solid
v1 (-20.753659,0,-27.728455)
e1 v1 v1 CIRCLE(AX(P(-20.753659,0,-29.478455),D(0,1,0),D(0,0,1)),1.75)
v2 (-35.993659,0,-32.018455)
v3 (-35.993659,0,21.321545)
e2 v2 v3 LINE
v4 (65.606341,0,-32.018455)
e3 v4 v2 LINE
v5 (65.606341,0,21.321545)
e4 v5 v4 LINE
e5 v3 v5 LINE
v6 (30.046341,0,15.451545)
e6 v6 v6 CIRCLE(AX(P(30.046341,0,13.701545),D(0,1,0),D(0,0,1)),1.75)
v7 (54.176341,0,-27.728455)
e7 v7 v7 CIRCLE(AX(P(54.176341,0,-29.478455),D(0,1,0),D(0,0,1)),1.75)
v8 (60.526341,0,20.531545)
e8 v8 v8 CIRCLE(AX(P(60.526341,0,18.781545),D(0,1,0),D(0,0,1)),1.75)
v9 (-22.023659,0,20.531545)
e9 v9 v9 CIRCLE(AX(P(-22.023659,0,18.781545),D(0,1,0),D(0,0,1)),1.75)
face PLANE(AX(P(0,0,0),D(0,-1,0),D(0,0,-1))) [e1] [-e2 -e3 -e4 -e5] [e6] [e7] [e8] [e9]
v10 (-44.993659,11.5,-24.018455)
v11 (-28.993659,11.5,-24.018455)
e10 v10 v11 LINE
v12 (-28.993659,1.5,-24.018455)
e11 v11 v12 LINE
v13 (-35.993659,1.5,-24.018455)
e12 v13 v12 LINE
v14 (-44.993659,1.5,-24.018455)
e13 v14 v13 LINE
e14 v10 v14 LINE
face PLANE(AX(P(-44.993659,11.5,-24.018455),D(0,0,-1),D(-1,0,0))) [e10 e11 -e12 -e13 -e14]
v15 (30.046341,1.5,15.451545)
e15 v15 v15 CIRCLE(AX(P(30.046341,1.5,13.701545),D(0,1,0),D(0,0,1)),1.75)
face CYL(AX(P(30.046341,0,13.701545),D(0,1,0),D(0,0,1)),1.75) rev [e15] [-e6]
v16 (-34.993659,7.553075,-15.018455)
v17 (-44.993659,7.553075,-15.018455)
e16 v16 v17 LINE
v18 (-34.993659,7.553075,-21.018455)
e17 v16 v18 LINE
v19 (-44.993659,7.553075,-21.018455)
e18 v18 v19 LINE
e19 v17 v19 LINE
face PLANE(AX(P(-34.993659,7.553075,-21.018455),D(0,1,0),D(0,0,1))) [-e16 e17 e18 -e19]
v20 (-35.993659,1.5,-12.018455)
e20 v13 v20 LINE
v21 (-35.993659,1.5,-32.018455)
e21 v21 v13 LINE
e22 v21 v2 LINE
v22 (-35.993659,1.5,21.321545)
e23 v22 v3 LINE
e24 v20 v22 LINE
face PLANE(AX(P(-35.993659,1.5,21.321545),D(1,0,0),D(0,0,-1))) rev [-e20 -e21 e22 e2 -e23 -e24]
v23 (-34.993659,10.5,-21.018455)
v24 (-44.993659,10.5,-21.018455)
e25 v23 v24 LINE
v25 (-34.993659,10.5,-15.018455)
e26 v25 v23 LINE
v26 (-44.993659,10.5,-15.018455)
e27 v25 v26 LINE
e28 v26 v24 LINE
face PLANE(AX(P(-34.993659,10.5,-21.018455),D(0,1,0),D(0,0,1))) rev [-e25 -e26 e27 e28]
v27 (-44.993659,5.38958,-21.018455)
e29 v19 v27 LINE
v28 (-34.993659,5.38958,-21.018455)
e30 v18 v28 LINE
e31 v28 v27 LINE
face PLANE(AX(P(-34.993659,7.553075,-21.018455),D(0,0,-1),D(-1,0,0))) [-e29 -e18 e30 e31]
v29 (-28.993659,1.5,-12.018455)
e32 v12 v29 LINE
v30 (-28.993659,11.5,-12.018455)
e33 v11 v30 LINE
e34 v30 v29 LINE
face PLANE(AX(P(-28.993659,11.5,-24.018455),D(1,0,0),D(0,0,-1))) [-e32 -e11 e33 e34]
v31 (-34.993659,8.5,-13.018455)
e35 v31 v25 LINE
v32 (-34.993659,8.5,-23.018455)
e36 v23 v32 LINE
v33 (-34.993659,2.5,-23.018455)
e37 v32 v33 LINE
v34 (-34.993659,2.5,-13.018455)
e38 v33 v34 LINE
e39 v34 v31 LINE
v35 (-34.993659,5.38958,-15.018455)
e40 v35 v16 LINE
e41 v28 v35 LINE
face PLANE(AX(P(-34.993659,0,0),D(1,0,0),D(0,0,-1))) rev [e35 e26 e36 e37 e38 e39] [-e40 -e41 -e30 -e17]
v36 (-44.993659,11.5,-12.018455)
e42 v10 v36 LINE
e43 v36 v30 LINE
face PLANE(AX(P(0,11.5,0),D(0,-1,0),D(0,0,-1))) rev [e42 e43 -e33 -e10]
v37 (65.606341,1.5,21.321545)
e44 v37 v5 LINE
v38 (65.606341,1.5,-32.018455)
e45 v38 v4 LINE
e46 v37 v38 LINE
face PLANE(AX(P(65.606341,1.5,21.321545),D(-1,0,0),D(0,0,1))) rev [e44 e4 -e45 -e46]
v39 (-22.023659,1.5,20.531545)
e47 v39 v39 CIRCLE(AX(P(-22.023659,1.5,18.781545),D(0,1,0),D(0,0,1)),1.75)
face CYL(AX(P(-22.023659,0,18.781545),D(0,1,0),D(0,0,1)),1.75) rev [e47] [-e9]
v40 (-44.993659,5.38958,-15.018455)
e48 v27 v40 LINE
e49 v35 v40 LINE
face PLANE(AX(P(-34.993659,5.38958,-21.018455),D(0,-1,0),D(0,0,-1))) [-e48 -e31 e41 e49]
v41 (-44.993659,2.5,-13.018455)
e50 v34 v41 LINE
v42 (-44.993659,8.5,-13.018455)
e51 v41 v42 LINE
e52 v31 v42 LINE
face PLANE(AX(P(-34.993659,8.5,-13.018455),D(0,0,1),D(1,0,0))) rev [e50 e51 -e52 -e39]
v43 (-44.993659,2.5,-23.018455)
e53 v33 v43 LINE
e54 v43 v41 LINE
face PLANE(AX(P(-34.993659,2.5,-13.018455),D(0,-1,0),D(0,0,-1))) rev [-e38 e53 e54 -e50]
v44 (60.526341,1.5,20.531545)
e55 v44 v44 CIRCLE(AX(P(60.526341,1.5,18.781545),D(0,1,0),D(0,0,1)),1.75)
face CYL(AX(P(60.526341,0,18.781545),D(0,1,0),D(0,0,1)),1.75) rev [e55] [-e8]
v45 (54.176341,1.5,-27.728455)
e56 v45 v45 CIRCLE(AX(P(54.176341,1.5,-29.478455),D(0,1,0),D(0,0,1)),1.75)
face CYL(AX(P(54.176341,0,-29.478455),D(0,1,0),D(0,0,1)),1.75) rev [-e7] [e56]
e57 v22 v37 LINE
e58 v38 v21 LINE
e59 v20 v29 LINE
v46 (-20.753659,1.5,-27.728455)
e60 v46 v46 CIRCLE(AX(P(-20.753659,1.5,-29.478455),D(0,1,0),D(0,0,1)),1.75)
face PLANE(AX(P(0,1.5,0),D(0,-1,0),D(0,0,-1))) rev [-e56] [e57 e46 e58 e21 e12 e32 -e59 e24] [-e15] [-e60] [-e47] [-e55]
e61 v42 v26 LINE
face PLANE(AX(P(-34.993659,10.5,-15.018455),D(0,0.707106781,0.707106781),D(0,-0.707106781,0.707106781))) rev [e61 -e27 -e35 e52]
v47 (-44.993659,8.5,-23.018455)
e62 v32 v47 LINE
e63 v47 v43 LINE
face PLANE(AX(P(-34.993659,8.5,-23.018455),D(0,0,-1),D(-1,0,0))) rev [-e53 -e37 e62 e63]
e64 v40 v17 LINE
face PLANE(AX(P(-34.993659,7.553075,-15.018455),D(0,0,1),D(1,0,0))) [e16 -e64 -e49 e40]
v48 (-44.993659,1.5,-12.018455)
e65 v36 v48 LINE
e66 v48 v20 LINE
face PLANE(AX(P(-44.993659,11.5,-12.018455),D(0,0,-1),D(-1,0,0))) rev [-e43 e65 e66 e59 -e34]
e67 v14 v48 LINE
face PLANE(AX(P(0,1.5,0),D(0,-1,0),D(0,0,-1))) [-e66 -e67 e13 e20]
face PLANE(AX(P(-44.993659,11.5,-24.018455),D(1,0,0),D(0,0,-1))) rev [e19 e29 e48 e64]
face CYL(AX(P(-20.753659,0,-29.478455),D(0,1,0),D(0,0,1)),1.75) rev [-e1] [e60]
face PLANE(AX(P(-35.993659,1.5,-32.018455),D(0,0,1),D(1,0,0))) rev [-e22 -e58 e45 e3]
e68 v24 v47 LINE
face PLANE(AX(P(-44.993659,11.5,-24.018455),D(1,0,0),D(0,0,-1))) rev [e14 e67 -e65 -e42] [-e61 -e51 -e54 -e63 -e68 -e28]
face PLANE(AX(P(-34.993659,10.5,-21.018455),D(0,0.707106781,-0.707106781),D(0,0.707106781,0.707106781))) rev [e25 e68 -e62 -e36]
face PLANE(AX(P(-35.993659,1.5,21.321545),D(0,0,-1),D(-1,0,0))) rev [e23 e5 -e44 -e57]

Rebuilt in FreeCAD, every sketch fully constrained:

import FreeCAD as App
import Part
import Sketcher
from FreeCAD import Vector

doc = App.newDocument("Part")
body = doc.addObject("PartDesign::Body", "Body")

# Sketch on XZ plane
sketch1 = body.newObject("Sketcher::SketchObject", "Sketch")
sketch1.AttachmentSupport = (doc.getObject("XZ_Plane"), [""])
sketch1.MapMode = "FlatFace"
sketch1.addGeometry([
    Part.LineSegment(Vector(-36, -32, 0), Vector(-36, 21, 0)),
    Part.LineSegment(Vector(-36, 21, 0), Vector(66, 21, 0)),
    Part.LineSegment(Vector(66, 21, 0), Vector(66, -32, 0)),
    Part.LineSegment(Vector(66, -32, 0), Vector(-36, -32, 0)),
], False)
sketch1.addConstraint([
    Sketcher.Constraint("Coincident", 0, 2, 1, 1),
    Sketcher.Constraint("Coincident", 1, 2, 2, 1),
    Sketcher.Constraint("Coincident", 2, 2, 3, 1),
    Sketcher.Constraint("Coincident", 3, 2, 0, 1),
    Sketcher.Constraint("Vertical", 0),
    Sketcher.Constraint("Horizontal", 1),
    Sketcher.Constraint("Vertical", 2),
    Sketcher.Constraint("Horizontal", 3),
    Sketcher.Constraint("DistanceX", 1, 1, 1, 2, 101.6),
    Sketcher.Constraint("DistanceY", 0, 1, 0, 2, 53.34),
    Sketcher.Constraint("DistanceX", 0, 2, -1, 1, 35.993659),
    Sketcher.Constraint("DistanceY", -1, 1, 0, 2, 21.321545),
])
pad1 = body.newObject("PartDesign::Pad", "Pad")
pad1.Profile = sketch1
pad1.Length = 1.5
pad1.Reversed = True

# Sketch on XZ plane
sketch2 = body.newObject("Sketcher::SketchObject", "Sketch001")
sketch2.AttachmentSupport = (doc.getObject("XZ_Plane"), [""])
sketch2.MapMode = "FlatFace"
sketch2.AttachmentOffset = App.Placement(Vector(0, 0, -1.5), App.Rotation())
sketch2.addGeometry([
    Part.LineSegment(Vector(-45, -24, 0), Vector(-45, -12, 0)),
    Part.LineSegment(Vector(-45, -12, 0), Vector(-29, -12, 0)),
    Part.LineSegment(Vector(-29, -12, 0), Vector(-29, -24, 0)),
    Part.LineSegment(Vector(-29, -24, 0), Vector(-45, -24, 0)),
], False)
sketch2.addConstraint([
    Sketcher.Constraint("Coincident", 0, 2, 1, 1),
    Sketcher.Constraint("Coincident", 1, 2, 2, 1),
    Sketcher.Constraint("Coincident", 2, 2, 3, 1),
    Sketcher.Constraint("Coincident", 3, 2, 0, 1),
    Sketcher.Constraint("Vertical", 0),
    Sketcher.Constraint("Horizontal", 1),
    Sketcher.Constraint("Vertical", 2),
    Sketcher.Constraint("Horizontal", 3),
    Sketcher.Constraint("DistanceX", 1, 1, 1, 2, 16.0),
    Sketcher.Constraint("DistanceY", 0, 1, 0, 2, 12.0),
    Sketcher.Constraint("DistanceX", 0, 2, -1, 1, 44.993659),
    Sketcher.Constraint("DistanceY", 0, 2, -1, 1, 12.018455),
])
pad2 = body.newObject("PartDesign::Pad", "Pad001")
pad2.Profile = sketch2
pad2.Length = 10
pad2.Reversed = True

# Sketch on YZ plane
sketch3 = body.newObject("Sketcher::SketchObject", "Sketch002")
sketch3.AttachmentSupport = (doc.getObject("YZ_Plane"), [""])
sketch3.MapMode = "FlatFace"
sketch3.AttachmentOffset = App.Placement(Vector(0, 0, -44.993659), App.Rotation())
sketch3.addGeometry([
    Part.LineSegment(Vector(10.5, -21, 0), Vector(8.5, -23, 0)),  # 0
    Part.LineSegment(Vector(8.5, -23, 0), Vector(2.5, -23, 0)),  # 1
    Part.LineSegment(Vector(2.5, -23, 0), Vector(2.5, -13, 0)),  # 2
    Part.LineSegment(Vector(2.5, -13, 0), Vector(8.5, -13, 0)),  # 3
    Part.LineSegment(Vector(8.5, -13, 0), Vector(10.5, -15, 0)),  # 4
    Part.LineSegment(Vector(10.5, -15, 0), Vector(10.5, -21, 0)),  # 5
    Part.LineSegment(Vector(5.4, -15, 0), Vector(5.4, -21, 0)),  # 6
    Part.LineSegment(Vector(5.4, -21, 0), Vector(7.6, -21, 0)),  # 7
    Part.LineSegment(Vector(7.6, -21, 0), Vector(7.6, -15, 0)),  # 8
    Part.LineSegment(Vector(7.6, -15, 0), Vector(5.4, -15, 0)),  # 9
], False)
sketch3.addConstraint([
    Sketcher.Constraint("Coincident", 0, 2, 1, 1),
    Sketcher.Constraint("Coincident", 1, 2, 2, 1),
    Sketcher.Constraint("Coincident", 2, 2, 3, 1),
    Sketcher.Constraint("Coincident", 3, 2, 4, 1),
    Sketcher.Constraint("Coincident", 4, 2, 5, 1),
    Sketcher.Constraint("Coincident", 5, 2, 0, 1),
    Sketcher.Constraint("Coincident", 6, 2, 7, 1),
    Sketcher.Constraint("Coincident", 7, 2, 8, 1),
    Sketcher.Constraint("Coincident", 8, 2, 9, 1),
    Sketcher.Constraint("Coincident", 9, 2, 6, 1),
    Sketcher.Constraint("Horizontal", 1),
    Sketcher.Constraint("Vertical", 2),
    Sketcher.Constraint("Horizontal", 3),
    Sketcher.Constraint("Vertical", 5),
    Sketcher.Constraint("Vertical", 6),
    Sketcher.Constraint("Horizontal", 7),
    Sketcher.Constraint("Vertical", 8),
    Sketcher.Constraint("Horizontal", 9),
    Sketcher.Constraint("Perpendicular", 0, 4),
    Sketcher.Constraint("Horizontal", 5, 2, 6, 2),
    Sketcher.Constraint("Horizontal", 4, 2, 8, 2),
    Sketcher.Constraint("Vertical", 0, 2, 3, 2),
    Sketcher.Constraint("Equal", 3, 5),
    Sketcher.Constraint("Equal", 0, 4),
    Sketcher.Constraint("DistanceX", 1, 2, 1, 1, 6.0),
    Sketcher.Constraint("DistanceY", 2, 1, 2, 2, 10.0),
    Sketcher.Constraint("DistanceX", -1, 1, 0, 2, 8.5),
    Sketcher.Constraint("DistanceX", 7, 1, 7, 2, 2.163495),
    Sketcher.Constraint("DistanceX", -1, 1, 6, 2, 5.38958),
    Sketcher.Constraint("DistanceY", 0, 2, -1, 1, 23.018455),
])
pocket1 = body.newObject("PartDesign::Pocket", "Pocket")
pocket1.Profile = sketch3
pocket1.Length = 10
pocket1.Reversed = True

# Sketch on XZ plane
sketch4 = body.newObject("Sketcher::SketchObject", "Sketch003")
sketch4.AttachmentSupport = (doc.getObject("XZ_Plane"), [""])
sketch4.MapMode = "FlatFace"
sketch4.AttachmentOffset = App.Placement(Vector(0, 0, -1.5), App.Rotation())
sketch4.addGeometry([
    Part.Circle(Vector(-20.8, -29.5, 0), Vector(0, 0, 1), 1.8),  # 0
    Part.Circle(Vector(54.2, -29.5, 0), Vector(0, 0, 1), 1.8),  # 1
    Part.Circle(Vector(-22, 18.8, 0), Vector(0, 0, 1), 1.8),  # 2
    Part.Circle(Vector(30, 13.7, 0), Vector(0, 0, 1), 1.8),  # 3
    Part.Circle(Vector(60.5, 18.8, 0), Vector(0, 0, 1), 1.8),  # 4
], False)
sketch4.addConstraint([
    Sketcher.Constraint("Equal", 0, 1),
    Sketcher.Constraint("Equal", 1, 2),
    Sketcher.Constraint("Equal", 2, 3),
    Sketcher.Constraint("Equal", 3, 4),
    Sketcher.Constraint("Horizontal", 0, 3, 1, 3),
    Sketcher.Constraint("Horizontal", 2, 3, 4, 3),
    Sketcher.Constraint("Diameter", 0, 3.5),
    Sketcher.Constraint("DistanceX", 2, 3, 1, 3, 76.2),
    Sketcher.Constraint("DistanceX", 0, 3, 3, 3, 50.8),
    Sketcher.Constraint("DistanceX", 0, 3, 1, 3, 74.93),
    Sketcher.Constraint("DistanceY", 0, 3, 2, 3, 48.26),
    Sketcher.Constraint("DistanceY", 1, 3, 3, 3, 43.18),
    Sketcher.Constraint("DistanceX", 3, 3, 4, 3, 30.48),
    Sketcher.Constraint("DistanceX", 0, 3, -1, 1, 20.753659),
    Sketcher.Constraint("DistanceY", 0, 3, -1, 1, 29.478455),
])
pocket2 = body.newObject("PartDesign::Pocket", "Pocket001")
pocket2.Profile = sketch4
pocket2.Type = "ThroughAll"
pocket2.Reversed = True

doc.recompute()
